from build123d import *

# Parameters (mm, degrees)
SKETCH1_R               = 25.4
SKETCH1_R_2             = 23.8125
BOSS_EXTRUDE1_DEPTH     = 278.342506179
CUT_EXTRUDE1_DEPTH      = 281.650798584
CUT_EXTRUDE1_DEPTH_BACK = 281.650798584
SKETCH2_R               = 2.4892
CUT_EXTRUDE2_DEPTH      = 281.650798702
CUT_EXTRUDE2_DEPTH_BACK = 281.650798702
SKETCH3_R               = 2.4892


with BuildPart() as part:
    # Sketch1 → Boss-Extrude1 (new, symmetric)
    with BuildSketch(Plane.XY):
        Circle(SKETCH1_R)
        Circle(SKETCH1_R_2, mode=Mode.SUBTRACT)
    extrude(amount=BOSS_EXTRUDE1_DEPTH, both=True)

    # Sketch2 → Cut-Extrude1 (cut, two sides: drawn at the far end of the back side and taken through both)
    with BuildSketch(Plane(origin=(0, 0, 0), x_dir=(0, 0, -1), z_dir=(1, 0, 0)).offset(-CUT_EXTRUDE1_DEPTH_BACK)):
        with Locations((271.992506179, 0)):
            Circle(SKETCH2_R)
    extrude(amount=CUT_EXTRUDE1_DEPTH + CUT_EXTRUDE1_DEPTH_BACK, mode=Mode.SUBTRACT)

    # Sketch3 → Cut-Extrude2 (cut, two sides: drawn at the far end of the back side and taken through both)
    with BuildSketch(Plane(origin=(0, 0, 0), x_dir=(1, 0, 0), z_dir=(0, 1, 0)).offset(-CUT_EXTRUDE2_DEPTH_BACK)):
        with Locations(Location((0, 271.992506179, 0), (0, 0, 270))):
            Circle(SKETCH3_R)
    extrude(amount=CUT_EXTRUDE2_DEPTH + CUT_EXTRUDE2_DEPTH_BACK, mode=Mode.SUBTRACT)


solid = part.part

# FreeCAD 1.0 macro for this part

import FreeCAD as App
import Part
import Sketcher

V = App.Vector
Q = App.Units.Quantity

doc = App.newDocument("Part")
body = doc.addObject("PartDesign::Body", "Body")

# Sketch on XY plane
sketch1 = body.newObject("Sketcher::SketchObject", "Sketch")
sketch1.AttachmentSupport = (doc.getObject("XY_Plane"), [""])
sketch1.MapMode = "FlatFace"
sketch1.addGeometry(Part.Circle(V(0, 0, 0), V(0, 0, 1), 25), False)
sketch1.addGeometry(Part.Circle(V(0, 0, 0), V(0, 0, 1), 24), False)
sketch1.addConstraint(Sketcher.Constraint("Coincident", 0, 3, -1, 1))
sketch1.addConstraint(Sketcher.Constraint("Coincident", 1, 3, -1, 1))
sketch1.addConstraint(Sketcher.Constraint("Diameter", 0, Q("2 in")))
sketch1.addConstraint(Sketcher.Constraint("Diameter", 1, Q("1.875 in")))
pad1 = body.newObject("PartDesign::Pad", "Pad")
pad1.Profile = sketch1
pad1.Length = 556.685012
pad1.Midplane = True

# Sketch on YZ plane
sketch2 = body.newObject("Sketcher::SketchObject", "Sketch001")
sketch2.AttachmentSupport = (doc.getObject("YZ_Plane"), [""])
sketch2.MapMode = "FlatFace"
sketch2.addGeometry(Part.Circle(V(0, -272, 0), V(0, 0, 1), 2.5), False)
sketch2.addConstraint(Sketcher.Constraint("PointOnObject", 0, 3, -2))
sketch2.addConstraint(Sketcher.Constraint("Diameter", 0, Q("0.196 in")))
sketch2.addConstraint(Sketcher.Constraint("DistanceY", 0, 3, -1, 1, Q("271.992506 mm")))
pocket1 = body.newObject("PartDesign::Pocket", "Pocket")
pocket1.Profile = sketch2
pocket1.Type = "ThroughAll"
pocket1.Midplane = True

# Sketch on XZ plane
sketch3 = body.newObject("Sketcher::SketchObject", "Sketch002")
sketch3.AttachmentSupport = (doc.getObject("XZ_Plane"), [""])
sketch3.MapMode = "FlatFace"
sketch3.addGeometry(Part.Circle(V(0, -272, 0), V(0, 0, 1), 2.5), False)
sketch3.addConstraint(Sketcher.Constraint("PointOnObject", 0, 3, -2))
sketch3.addConstraint(Sketcher.Constraint("Diameter", 0, Q("0.196 in")))
sketch3.addConstraint(Sketcher.Constraint("DistanceY", 0, 3, -1, 1, Q("271.992506 mm")))
pocket2 = body.newObject("PartDesign::Pocket", "Pocket001")
pocket2.Profile = sketch3
pocket2.Type = "ThroughAll"
pocket2.Midplane = True

doc.recompute()
